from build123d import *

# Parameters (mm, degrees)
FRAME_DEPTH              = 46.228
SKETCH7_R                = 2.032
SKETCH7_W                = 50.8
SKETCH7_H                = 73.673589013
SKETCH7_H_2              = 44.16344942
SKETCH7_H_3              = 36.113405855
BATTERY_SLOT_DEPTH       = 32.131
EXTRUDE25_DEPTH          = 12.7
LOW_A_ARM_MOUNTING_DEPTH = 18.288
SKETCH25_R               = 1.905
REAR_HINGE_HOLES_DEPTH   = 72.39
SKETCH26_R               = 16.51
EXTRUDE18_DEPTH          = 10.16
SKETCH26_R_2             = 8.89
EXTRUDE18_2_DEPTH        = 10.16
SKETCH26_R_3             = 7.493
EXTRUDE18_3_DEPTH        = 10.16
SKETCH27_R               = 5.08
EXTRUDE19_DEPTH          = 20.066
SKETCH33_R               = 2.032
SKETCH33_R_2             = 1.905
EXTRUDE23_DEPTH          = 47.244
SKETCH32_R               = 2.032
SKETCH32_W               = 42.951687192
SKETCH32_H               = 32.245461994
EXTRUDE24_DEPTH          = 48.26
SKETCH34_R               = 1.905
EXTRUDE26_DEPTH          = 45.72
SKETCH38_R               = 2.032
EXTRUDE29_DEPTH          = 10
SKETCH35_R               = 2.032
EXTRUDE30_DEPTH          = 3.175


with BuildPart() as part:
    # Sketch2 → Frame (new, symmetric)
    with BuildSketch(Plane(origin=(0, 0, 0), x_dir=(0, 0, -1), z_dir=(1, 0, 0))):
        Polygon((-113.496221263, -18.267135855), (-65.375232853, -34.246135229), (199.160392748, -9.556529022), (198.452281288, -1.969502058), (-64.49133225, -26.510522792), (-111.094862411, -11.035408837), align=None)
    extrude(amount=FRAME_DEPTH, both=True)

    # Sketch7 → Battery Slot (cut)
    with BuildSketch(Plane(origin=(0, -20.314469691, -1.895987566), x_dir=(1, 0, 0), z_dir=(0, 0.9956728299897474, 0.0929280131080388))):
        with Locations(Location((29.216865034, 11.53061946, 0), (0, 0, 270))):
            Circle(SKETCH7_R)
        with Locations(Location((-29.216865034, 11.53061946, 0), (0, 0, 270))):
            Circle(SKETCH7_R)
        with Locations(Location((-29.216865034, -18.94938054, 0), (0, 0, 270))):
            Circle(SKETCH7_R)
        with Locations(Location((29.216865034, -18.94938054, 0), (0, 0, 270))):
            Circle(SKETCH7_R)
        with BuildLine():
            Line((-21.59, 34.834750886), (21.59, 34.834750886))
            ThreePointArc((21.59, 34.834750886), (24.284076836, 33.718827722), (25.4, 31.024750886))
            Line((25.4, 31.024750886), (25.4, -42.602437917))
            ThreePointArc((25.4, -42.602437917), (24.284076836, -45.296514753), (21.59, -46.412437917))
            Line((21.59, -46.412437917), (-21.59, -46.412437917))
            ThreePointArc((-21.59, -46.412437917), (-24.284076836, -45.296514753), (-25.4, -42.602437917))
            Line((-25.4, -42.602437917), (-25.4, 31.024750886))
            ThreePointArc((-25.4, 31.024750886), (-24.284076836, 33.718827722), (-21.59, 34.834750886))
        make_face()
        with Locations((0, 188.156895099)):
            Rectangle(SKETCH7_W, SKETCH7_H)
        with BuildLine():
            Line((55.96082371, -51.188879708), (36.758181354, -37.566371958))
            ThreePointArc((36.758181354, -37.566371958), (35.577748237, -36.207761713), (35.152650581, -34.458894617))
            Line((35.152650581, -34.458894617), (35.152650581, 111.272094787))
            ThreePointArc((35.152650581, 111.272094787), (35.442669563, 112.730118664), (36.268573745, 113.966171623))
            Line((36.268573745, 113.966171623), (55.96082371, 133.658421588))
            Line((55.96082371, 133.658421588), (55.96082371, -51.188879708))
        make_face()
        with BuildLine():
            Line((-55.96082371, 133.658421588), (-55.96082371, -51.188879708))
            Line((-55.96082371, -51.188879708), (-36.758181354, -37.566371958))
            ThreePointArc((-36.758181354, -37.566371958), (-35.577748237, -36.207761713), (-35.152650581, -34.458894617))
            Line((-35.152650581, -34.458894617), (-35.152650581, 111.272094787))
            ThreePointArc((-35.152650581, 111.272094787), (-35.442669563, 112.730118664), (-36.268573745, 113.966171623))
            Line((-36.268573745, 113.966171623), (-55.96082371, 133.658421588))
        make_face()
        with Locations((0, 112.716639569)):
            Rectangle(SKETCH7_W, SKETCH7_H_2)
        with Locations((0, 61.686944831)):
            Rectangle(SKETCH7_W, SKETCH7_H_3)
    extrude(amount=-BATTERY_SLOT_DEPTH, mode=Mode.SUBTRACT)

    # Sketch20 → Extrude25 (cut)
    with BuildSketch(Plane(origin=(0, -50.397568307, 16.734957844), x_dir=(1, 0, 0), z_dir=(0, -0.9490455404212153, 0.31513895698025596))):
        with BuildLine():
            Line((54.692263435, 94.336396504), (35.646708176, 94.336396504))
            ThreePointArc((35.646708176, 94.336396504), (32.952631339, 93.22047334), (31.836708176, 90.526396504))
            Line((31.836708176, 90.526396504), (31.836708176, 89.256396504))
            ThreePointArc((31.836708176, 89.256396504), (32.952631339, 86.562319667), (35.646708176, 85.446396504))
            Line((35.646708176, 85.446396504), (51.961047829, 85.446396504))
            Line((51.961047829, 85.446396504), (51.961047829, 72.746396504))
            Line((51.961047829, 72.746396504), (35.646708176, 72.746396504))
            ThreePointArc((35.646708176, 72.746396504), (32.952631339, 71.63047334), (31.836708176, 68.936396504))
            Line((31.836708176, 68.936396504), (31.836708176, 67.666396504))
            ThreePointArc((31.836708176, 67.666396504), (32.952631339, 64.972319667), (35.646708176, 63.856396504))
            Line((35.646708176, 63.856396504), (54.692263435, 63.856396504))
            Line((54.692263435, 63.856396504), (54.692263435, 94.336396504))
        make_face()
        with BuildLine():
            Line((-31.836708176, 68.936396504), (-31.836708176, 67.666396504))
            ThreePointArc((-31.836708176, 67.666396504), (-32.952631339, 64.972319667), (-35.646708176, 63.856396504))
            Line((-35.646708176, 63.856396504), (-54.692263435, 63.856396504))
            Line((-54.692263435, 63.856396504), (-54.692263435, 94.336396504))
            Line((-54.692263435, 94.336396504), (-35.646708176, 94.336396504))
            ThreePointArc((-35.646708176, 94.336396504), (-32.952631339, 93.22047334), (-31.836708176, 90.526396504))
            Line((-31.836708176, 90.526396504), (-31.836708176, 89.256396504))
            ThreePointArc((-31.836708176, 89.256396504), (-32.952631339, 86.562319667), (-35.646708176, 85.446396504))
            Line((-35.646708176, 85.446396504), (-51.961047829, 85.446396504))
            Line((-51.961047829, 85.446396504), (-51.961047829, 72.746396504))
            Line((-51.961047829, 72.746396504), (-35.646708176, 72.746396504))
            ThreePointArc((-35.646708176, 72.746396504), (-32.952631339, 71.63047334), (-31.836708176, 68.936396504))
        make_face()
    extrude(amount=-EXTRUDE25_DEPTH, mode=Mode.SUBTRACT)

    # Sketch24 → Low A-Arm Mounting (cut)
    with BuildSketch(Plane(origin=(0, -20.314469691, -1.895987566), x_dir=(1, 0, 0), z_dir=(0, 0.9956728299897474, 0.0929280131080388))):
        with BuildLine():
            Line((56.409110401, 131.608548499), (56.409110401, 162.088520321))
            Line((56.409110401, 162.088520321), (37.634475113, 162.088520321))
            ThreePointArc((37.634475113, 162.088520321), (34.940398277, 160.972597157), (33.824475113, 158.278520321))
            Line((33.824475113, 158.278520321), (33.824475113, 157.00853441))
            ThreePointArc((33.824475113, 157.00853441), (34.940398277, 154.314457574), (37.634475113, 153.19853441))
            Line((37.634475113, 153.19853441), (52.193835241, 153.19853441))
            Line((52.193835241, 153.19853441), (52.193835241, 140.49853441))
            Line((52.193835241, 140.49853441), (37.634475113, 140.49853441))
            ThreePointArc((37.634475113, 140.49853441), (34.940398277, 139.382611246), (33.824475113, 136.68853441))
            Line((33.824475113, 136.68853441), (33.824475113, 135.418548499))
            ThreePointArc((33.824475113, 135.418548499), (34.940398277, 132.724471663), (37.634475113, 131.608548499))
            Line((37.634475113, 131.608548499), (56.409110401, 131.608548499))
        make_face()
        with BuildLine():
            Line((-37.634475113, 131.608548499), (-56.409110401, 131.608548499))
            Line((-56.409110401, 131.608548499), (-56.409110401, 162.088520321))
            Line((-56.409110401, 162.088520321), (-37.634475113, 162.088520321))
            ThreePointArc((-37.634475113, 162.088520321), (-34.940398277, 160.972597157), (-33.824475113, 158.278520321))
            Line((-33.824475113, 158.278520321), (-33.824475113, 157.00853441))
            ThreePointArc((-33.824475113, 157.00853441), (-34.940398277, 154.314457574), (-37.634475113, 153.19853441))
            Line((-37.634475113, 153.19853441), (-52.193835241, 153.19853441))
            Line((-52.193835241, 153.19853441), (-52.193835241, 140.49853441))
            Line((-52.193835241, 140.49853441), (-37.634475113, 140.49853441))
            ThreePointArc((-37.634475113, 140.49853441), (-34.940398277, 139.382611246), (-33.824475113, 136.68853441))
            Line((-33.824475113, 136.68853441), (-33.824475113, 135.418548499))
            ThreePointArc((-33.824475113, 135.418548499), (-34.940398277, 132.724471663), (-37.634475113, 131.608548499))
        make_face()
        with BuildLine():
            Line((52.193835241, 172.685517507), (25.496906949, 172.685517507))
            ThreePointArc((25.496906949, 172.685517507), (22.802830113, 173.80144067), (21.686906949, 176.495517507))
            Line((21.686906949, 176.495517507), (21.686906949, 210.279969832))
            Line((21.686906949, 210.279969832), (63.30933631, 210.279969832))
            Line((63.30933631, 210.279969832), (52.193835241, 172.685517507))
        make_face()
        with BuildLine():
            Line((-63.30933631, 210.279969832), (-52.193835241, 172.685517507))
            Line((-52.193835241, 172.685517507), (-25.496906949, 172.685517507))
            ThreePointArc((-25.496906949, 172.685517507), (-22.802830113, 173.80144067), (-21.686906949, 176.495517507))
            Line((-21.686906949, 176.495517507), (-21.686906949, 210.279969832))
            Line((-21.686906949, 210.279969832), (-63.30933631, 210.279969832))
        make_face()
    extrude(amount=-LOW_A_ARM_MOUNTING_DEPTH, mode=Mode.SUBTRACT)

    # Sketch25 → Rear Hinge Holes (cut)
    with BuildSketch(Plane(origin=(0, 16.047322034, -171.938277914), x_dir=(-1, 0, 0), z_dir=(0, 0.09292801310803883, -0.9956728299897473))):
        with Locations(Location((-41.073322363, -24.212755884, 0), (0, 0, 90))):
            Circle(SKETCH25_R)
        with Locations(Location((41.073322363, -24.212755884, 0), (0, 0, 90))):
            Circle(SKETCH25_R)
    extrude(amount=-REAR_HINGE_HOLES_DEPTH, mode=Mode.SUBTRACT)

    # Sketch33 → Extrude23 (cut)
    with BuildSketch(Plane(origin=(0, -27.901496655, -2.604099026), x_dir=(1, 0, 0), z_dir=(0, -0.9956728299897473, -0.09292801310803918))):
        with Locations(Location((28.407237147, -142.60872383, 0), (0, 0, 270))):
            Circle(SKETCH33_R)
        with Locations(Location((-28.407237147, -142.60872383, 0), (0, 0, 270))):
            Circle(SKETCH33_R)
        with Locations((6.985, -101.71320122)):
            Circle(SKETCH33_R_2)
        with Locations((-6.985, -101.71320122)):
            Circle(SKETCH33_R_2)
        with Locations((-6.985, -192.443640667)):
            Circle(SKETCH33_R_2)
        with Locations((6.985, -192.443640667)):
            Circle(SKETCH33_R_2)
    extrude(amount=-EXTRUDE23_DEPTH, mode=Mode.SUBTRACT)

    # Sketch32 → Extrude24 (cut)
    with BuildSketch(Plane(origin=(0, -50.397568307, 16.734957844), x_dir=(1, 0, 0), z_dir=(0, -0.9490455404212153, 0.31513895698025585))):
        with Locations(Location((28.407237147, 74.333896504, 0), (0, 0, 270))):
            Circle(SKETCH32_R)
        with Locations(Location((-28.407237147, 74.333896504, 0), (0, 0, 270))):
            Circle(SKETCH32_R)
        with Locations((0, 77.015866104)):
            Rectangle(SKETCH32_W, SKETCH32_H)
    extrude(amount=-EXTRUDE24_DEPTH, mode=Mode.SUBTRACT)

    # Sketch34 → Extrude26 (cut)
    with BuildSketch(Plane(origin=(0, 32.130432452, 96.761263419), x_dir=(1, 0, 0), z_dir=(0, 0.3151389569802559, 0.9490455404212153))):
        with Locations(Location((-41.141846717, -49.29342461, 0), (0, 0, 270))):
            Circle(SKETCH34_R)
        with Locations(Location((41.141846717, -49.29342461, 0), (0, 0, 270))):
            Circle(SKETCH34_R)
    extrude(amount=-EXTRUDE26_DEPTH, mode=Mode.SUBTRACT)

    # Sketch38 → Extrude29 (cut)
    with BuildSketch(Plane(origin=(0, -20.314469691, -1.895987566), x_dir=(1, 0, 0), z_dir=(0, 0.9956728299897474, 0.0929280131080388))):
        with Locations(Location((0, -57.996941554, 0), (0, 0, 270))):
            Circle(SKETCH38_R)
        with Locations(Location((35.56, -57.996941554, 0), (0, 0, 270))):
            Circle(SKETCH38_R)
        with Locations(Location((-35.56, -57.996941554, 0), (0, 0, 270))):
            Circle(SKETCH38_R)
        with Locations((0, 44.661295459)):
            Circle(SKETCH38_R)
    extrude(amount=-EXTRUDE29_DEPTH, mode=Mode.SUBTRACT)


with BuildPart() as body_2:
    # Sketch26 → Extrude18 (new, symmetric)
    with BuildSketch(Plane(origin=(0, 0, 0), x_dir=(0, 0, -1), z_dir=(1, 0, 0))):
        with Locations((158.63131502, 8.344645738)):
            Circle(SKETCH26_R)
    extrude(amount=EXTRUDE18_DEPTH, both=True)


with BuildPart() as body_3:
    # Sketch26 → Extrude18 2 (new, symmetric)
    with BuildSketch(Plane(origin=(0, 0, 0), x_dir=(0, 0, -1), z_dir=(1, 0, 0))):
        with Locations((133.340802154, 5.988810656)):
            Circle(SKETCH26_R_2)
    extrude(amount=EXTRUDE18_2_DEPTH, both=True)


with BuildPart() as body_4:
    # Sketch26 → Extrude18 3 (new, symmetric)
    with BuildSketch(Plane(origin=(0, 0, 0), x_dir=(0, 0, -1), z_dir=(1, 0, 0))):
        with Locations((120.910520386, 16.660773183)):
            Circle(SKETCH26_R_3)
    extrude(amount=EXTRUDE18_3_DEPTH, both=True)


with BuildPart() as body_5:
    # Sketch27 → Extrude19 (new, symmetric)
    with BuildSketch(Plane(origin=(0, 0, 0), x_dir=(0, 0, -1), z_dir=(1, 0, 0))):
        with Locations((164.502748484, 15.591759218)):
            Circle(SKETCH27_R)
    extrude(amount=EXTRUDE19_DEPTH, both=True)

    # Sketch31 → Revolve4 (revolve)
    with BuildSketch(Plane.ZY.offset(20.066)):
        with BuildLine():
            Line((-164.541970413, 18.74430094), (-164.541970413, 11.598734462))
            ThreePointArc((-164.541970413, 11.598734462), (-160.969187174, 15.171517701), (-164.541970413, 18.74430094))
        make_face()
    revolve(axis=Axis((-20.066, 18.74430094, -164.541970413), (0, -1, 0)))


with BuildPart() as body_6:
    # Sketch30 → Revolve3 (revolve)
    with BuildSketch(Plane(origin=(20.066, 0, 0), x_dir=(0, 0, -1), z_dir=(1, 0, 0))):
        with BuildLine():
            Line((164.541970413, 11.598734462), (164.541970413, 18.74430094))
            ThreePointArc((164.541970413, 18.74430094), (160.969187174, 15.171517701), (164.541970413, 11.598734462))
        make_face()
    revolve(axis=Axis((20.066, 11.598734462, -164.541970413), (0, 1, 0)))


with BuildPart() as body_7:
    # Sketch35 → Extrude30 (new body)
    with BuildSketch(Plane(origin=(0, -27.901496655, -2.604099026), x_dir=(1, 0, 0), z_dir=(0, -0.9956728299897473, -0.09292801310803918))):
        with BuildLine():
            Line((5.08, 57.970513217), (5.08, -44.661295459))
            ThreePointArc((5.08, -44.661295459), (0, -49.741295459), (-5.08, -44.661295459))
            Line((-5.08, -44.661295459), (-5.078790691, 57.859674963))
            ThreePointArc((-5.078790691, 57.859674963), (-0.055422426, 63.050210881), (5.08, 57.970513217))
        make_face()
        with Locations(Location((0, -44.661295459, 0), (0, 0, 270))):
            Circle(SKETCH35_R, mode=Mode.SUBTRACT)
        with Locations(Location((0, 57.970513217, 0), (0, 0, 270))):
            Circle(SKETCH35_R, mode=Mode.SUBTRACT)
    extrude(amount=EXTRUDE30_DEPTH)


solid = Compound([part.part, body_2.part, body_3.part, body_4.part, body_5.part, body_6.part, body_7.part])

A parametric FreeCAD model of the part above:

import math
import FreeCAD as App
import Part
import Sketcher
from FreeCAD import Vector
Q = App.Units.Quantity


def add_polygon(sketch, points):
    """Adds a closed chain of lines whose ends are joined by coincident constraints."""
    first, n = sketch.GeometryCount, len(points)
    for a, b in zip(points, points[1:] + points[:1]):
        sketch.addGeometry(Part.LineSegment(App.Vector(*a, 0), App.Vector(*b, 0)), False)
    for i in range(n):
        sketch.addConstraint(Sketcher.Constraint("Coincident", first + i, 2, first + (i + 1) % n, 1))

doc = App.newDocument("Part")
body = doc.addObject("PartDesign::Body", "Body")

# Sketch on YZ plane
sketch1 = body.newObject("Sketcher::SketchObject", "Sketch")
sketch1.AttachmentSupport = (doc.getObject("YZ_Plane"), [""])
sketch1.MapMode = "FlatFace"
add_polygon(sketch1, [(-18, 113), (-34, 65), (-10, -199), (-2, -198), (-27, 64), (-11, 111)])  # lines 0-5
sketch1.addConstraint([
    Sketcher.Constraint("Perpendicular", 1, 2),
    Sketcher.Constraint("Perpendicular", 2, 3),
    Sketcher.Constraint("Parallel", 0, 4),
    Sketcher.Constraint("Perpendicular", 4, 5),
    Sketcher.Constraint("Equal", 2, 5),
    Sketcher.Constraint("Distance", 2, Q("0.3 in")),
    Sketcher.Constraint("DistanceY", 3, 2, 0, 2, 0.883901),
    Sketcher.Constraint("DistanceX", 0, 2, 5, 2, 15.978999),
    Sketcher.Constraint("Distance", 1, 265.685291),
    Sketcher.Constraint("Distance", 3, 264.08636),
    Sketcher.Constraint("DistanceX", 1, 2, -1, 1, 9.556529),
    Sketcher.Constraint("DistanceY", 2, 2, -1, 1, 198.452281),
])
pad1 = body.newObject("PartDesign::Pad", "Pad")
pad1.Profile = sketch1
pad1.Length = Q("3.64 in")
pad1.Midplane = True

# Sketch on an angled plane
sketch2 = body.newObject("Sketcher::SketchObject", "Sketch001")
sketch2.Placement = App.Placement(Vector(0, -20.31447, -1.895988), App.Rotation(Vector(1, 0, 0), Vector(0, 0.092928013, -0.99567283), Vector(0, 0.99567283, 0.092928013), "ZXY"))
sketch2.addGeometry(Part.Circle(Vector(29.2, 11.5, 0), Vector(0, 0, 1), 2), False)  # 0
sketch2.addGeometry(Part.Circle(Vector(-29.2, 11.5, 0), Vector(0, 0, 1), 2), False)  # 1
sketch2.addGeometry(Part.Circle(Vector(-29.2, -18.9, 0), Vector(0, 0, 1), 2), False)  # 2
sketch2.addGeometry(Part.Circle(Vector(29.2, -18.9, 0), Vector(0, 0, 1), 2), False)  # 3
sketch2.addGeometry(Part.LineSegment(Vector(21.6, 34.8, 0), Vector(-21.6, 34.8, 0)), False)  # 4
sketch2.addGeometry(Part.ArcOfCircle(Part.Circle(Vector(-21.6, 31, 0), Vector(0, 0, 1), 3.8), math.radians(90), math.radians(180)), False)  # 5
sketch2.addGeometry(Part.LineSegment(Vector(-25.4, 31, 0), Vector(-25.4, -42.6, 0)), False)  # 6
sketch2.addGeometry(Part.ArcOfCircle(Part.Circle(Vector(-21.6, -42.6, 0), Vector(0, 0, 1), 3.8), math.radians(-180), math.radians(-90)), False)  # 7
sketch2.addGeometry(Part.LineSegment(Vector(-21.6, -46.4, 0), Vector(21.6, -46.4, 0)), False)  # 8
sketch2.addGeometry(Part.ArcOfCircle(Part.Circle(Vector(21.6, -42.6, 0), Vector(0, 0, 1), 3.8), math.radians(-90), math.radians(0)), False)  # 9
sketch2.addGeometry(Part.LineSegment(Vector(25.4, -42.6, 0), Vector(25.4, 31, 0)), False)  # 10
sketch2.addGeometry(Part.ArcOfCircle(Part.Circle(Vector(21.6, 31, 0), Vector(0, 0, 1), 3.8), math.radians(0), math.radians(90)), False)  # 11
add_polygon(sketch2, [(-25.4, 225), (-25.4, 151.3), (25.4, 151.3), (25.4, 225)])  # lines 12-15
sketch2.addGeometry(Part.LineSegment(Vector(36.8, -37.6, 0), Vector(56, -51.2, 0)), False)  # 16
sketch2.addGeometry(Part.LineSegment(Vector(56, -51.2, 0), Vector(56, 133.7, 0)), False)  # 17
sketch2.addGeometry(Part.LineSegment(Vector(56, 133.7, 0), Vector(36.3, 114, 0)), False)  # 18
sketch2.addGeometry(Part.ArcOfCircle(Part.Circle(Vector(39, 111.3, 0), Vector(0, 0, 1), 3.8), math.radians(135), math.radians(180)), False)  # 19
sketch2.addGeometry(Part.LineSegment(Vector(35.2, 111.3, 0), Vector(35.2, -34.5, 0)), False)  # 20
sketch2.addGeometry(Part.ArcOfCircle(Part.Circle(Vector(39, -34.5, 0), Vector(0, 0, 1), 3.8), math.radians(-180), math.radians(-125)), False)  # 21
sketch2.addGeometry(Part.LineSegment(Vector(-56, 133.7, 0), Vector(-56, -51.2, 0)), False)  # 22
sketch2.addGeometry(Part.LineSegment(Vector(-56, -51.2, 0), Vector(-36.8, -37.6, 0)), False)  # 23
sketch2.addGeometry(Part.ArcOfCircle(Part.Circle(Vector(-39, -34.5, 0), Vector(0, 0, 1), 3.8), math.radians(-55), math.radians(0)), False)  # 24
sketch2.addGeometry(Part.LineSegment(Vector(-35.2, -34.5, 0), Vector(-35.2, 111.3, 0)), False)  # 25
sketch2.addGeometry(Part.ArcOfCircle(Part.Circle(Vector(-39, 111.3, 0), Vector(0, 0, 1), 3.8), math.radians(0), math.radians(45)), False)  # 26
sketch2.addGeometry(Part.LineSegment(Vector(-36.3, 114, 0), Vector(-56, 133.7, 0)), False)  # 27
add_polygon(sketch2, [(-25.4, 134.8), (-25.4, 90.6), (25.4, 90.6), (25.4, 134.8)])  # lines 28-31
add_polygon(sketch2, [(-25.4, 79.7), (-25.4, 43.6), (25.4, 43.6), (25.4, 79.7)])  # lines 32-35
sketch2.addConstraint([
    Sketcher.Constraint("Tangent", 4, 2, 5, 1),
    Sketcher.Constraint("Tangent", 5, 2, 6, 1),
    Sketcher.Constraint("Tangent", 6, 2, 7, 1),
    Sketcher.Constraint("Tangent", 7, 2, 8, 1),
    Sketcher.Constraint("Tangent", 8, 2, 9, 1),
    Sketcher.Constraint("Tangent", 9, 2, 10, 1),
    Sketcher.Constraint("Tangent", 10, 2, 11, 1),
    Sketcher.Constraint("Tangent", 11, 2, 4, 1),
    Sketcher.Constraint("Coincident", 16, 2, 17, 1),
    Sketcher.Constraint("Coincident", 17, 2, 18, 1),
    Sketcher.Constraint("Tangent", 18, 2, 19, 1),
    Sketcher.Constraint("Tangent", 19, 2, 20, 1),
    Sketcher.Constraint("Tangent", 20, 2, 21, 1),
    Sketcher.Constraint("Tangent", 21, 2, 16, 1),
    Sketcher.Constraint("Coincident", 22, 2, 23, 1),
    Sketcher.Constraint("Tangent", 23, 2, 24, 1),
    Sketcher.Constraint("Tangent", 24, 2, 25, 1),
    Sketcher.Constraint("Tangent", 25, 2, 26, 1),
    Sketcher.Constraint("Tangent", 26, 2, 27, 1),
    Sketcher.Constraint("Coincident", 27, 2, 22, 1),
    Sketcher.Constraint("Horizontal", 4),
    Sketcher.Constraint("Vertical", 6),
    Sketcher.Constraint("Horizontal", 8),
    Sketcher.Constraint("Vertical", 10),
    Sketcher.Constraint("Vertical", 12),
    Sketcher.Constraint("Horizontal", 13),
    Sketcher.Constraint("Vertical", 14),
    Sketcher.Constraint("Horizontal", 15),
    Sketcher.Constraint("Vertical", 17),
    Sketcher.Constraint("Vertical", 20),
    Sketcher.Constraint("Vertical", 22),
    Sketcher.Constraint("Vertical", 25),
    Sketcher.Constraint("Vertical", 28),
    Sketcher.Constraint("Horizontal", 29),
    Sketcher.Constraint("Vertical", 30),
    Sketcher.Constraint("Horizontal", 31),
    Sketcher.Constraint("Vertical", 32),
    Sketcher.Constraint("Horizontal", 33),
    Sketcher.Constraint("Vertical", 34),
    Sketcher.Constraint("Horizontal", 35),
    Sketcher.Constraint("Equal", 0, 1),
    Sketcher.Constraint("Equal", 1, 2),
    Sketcher.Constraint("Equal", 2, 3),
    Sketcher.Constraint("Equal", 5, 7),
    Sketcher.Constraint("Equal", 7, 9),
    Sketcher.Constraint("Equal", 9, 11),
    Sketcher.Constraint("Equal", 11, 19),
    Sketcher.Constraint("Equal", 19, 21),
    Sketcher.Constraint("Equal", 21, 24),
    Sketcher.Constraint("Equal", 24, 26),
    Sketcher.Constraint("Symmetric", 0, 3, 1, 3, -2),
    Sketcher.Constraint("Symmetric", 2, 3, 3, 3, -2),
    Sketcher.Constraint("Symmetric", 21, 3, 24, 3, -2),
    Sketcher.Constraint("Symmetric", 16, 2, 22, 2, -2),
    Sketcher.Constraint("Symmetric", 18, 2, 26, 2, -2),
    Sketcher.Constraint("Perpendicular", 18, 27),
    Sketcher.Constraint("Vertical", 1, 3, 2, 3),
    Sketcher.Constraint("Vertical", 6, 2, 12, 2),
    Sketcher.Constraint("Vertical", 10, 2, 13, 2),
    Sketcher.Constraint("Vertical", 15, 2, 28, 2),
    Sketcher.Constraint("Vertical", 14, 2, 29, 2),
    Sketcher.Constraint("Vertical", 31, 2, 32, 2),
    Sketcher.Constraint("Vertical", 30, 2, 33, 2),
    Sketcher.Constraint("Diameter", 0, Q("0.16 in")),
    Sketcher.Constraint("DistanceX", 13, 1, 13, 2, Q("2 in")),
    Sketcher.Constraint("Radius", 5, Q("0.15 in")),
    Sketcher.Constraint("DistanceX", 5, 2, -1, 1, Q("1 in")),
    Sketcher.Constraint("DistanceY", 2, 3, 1, 3, Q("1.2 in")),
    Sketcher.Constraint("DistanceY", 17, 1, 17, 2, 184.847301),
    Sketcher.Constraint("DistanceY", 6, 2, 6, 1, 73.627189),
    Sketcher.Constraint("DistanceY", 12, 2, 12, 1, 73.673589),
    Sketcher.Constraint("DistanceY", 20, 2, 20, 1, 145.730989),
    Sketcher.Constraint("DistanceY", 28, 2, 28, 1, 44.163449),
    Sketcher.Constraint("DistanceY", -1, 1, 12, 2, 151.320101),
    Sketcher.Constraint("DistanceX", 26, 3, 19, 3, 77.925301),
    Sketcher.Constraint("DistanceY", 16, 2, 3, 3, 32.239499),
    Sketcher.Constraint("DistanceY", 32, 2, 32, 1, 36.113406),
    Sketcher.Constraint("DistanceY", -1, 1, 0, 3, 11.530619),
    Sketcher.Constraint("DistanceY", -1, 1, 5, 3, 31.024751),
    Sketcher.Constraint("DistanceY", -1, 1, 18, 2, 113.966172),
    Sketcher.Constraint("DistanceY", -1, 1, 32, 2, 43.630242),
    Sketcher.Constraint("DistanceX", 1, 3, 0, 3, 58.43373),
    Sketcher.Constraint("DistanceY", 28, 2, 25, 2, 20.63718),
])
pocket1 = body.newObject("PartDesign::Pocket", "Pocket")
pocket1.Profile = sketch2
pocket1.Length = Q("1.265 in")

# Sketch on an angled plane
sketch3 = body.newObject("Sketcher::SketchObject", "Sketch002")
sketch3.Placement = App.Placement(Vector(0, -50.397568, 16.734958), App.Rotation(Vector(1, 0, 0), Vector(0, 0.315138957, 0.94904554), Vector(0, -0.94904554, 0.315138957), "ZXY"))
sketch3.addGeometry([
    Part.LineSegment(Vector(54.7, 94.3, 0), Vector(35.6, 94.3, 0)),  # 0
    Part.ArcOfCircle(Part.Circle(Vector(35.6, 90.5, 0), Vector(0, 0, 1), 3.8), math.radians(90), math.radians(180)),  # 1
    Part.LineSegment(Vector(31.8, 90.5, 0), Vector(31.8, 89.3, 0)),  # 2
    Part.ArcOfCircle(Part.Circle(Vector(35.6, 89.3, 0), Vector(0, 0, 1), 3.8), math.radians(180), math.radians(270)),  # 3
    Part.LineSegment(Vector(35.6, 85.4, 0), Vector(52, 85.4, 0)),  # 4
    Part.LineSegment(Vector(52, 85.4, 0), Vector(52, 72.7, 0)),  # 5
    Part.LineSegment(Vector(52, 72.7, 0), Vector(35.6, 72.7, 0)),  # 6
    Part.ArcOfCircle(Part.Circle(Vector(35.6, 68.9, 0), Vector(0, 0, 1), 3.8), math.radians(90), math.radians(180)),  # 7
    Part.LineSegment(Vector(31.8, 68.9, 0), Vector(31.8, 67.7, 0)),  # 8
    Part.ArcOfCircle(Part.Circle(Vector(35.6, 67.7, 0), Vector(0, 0, 1), 3.8), math.radians(180), math.radians(270)),  # 9
    Part.LineSegment(Vector(35.6, 63.9, 0), Vector(54.7, 63.9, 0)),  # 10
    Part.LineSegment(Vector(54.7, 63.9, 0), Vector(54.7, 94.3, 0)),  # 11
    Part.LineSegment(Vector(-31.8, 67.7, 0), Vector(-31.8, 68.9, 0)),  # 12
    Part.ArcOfCircle(Part.Circle(Vector(-35.6, 68.9, 0), Vector(0, 0, 1), 3.8), math.radians(0), math.radians(90)),  # 13
    Part.LineSegment(Vector(-35.6, 72.7, 0), Vector(-52, 72.7, 0)),  # 14
    Part.LineSegment(Vector(-52, 72.7, 0), Vector(-52, 85.4, 0)),  # 15
    Part.LineSegment(Vector(-52, 85.4, 0), Vector(-35.6, 85.4, 0)),  # 16
    Part.ArcOfCircle(Part.Circle(Vector(-35.6, 89.3, 0), Vector(0, 0, 1), 3.8), math.radians(-90), math.radians(0)),  # 17
    Part.LineSegment(Vector(-31.8, 89.3, 0), Vector(-31.8, 90.5, 0)),  # 18
    Part.ArcOfCircle(Part.Circle(Vector(-35.6, 90.5, 0), Vector(0, 0, 1), 3.8), math.radians(0), math.radians(90)),  # 19
    Part.LineSegment(Vector(-35.6, 94.3, 0), Vector(-54.7, 94.3, 0)),  # 20
    Part.LineSegment(Vector(-54.7, 94.3, 0), Vector(-54.7, 63.9, 0)),  # 21
    Part.LineSegment(Vector(-54.7, 63.9, 0), Vector(-35.6, 63.9, 0)),  # 22
    Part.ArcOfCircle(Part.Circle(Vector(-35.6, 67.7, 0), Vector(0, 0, 1), 3.8), math.radians(-90), math.radians(0)),  # 23
], False)
sketch3.addConstraint([
    Sketcher.Constraint("Tangent", 0, 2, 1, 1),
    Sketcher.Constraint("Tangent", 1, 2, 2, 1),
    Sketcher.Constraint("Tangent", 2, 2, 3, 1),
    Sketcher.Constraint("Tangent", 3, 2, 4, 1),
    Sketcher.Constraint("Coincident", 4, 2, 5, 1),
    Sketcher.Constraint("Coincident", 5, 2, 6, 1),
    Sketcher.Constraint("Tangent", 6, 2, 7, 1),
    Sketcher.Constraint("Tangent", 7, 2, 8, 1),
    Sketcher.Constraint("Tangent", 8, 2, 9, 1),
    Sketcher.Constraint("Tangent", 9, 2, 10, 1),
    Sketcher.Constraint("Coincident", 10, 2, 11, 1),
    Sketcher.Constraint("Coincident", 11, 2, 0, 1),
    Sketcher.Constraint("Tangent", 12, 2, 13, 1),
    Sketcher.Constraint("Tangent", 13, 2, 14, 1),
    Sketcher.Constraint("Coincident", 14, 2, 15, 1),
    Sketcher.Constraint("Coincident", 15, 2, 16, 1),
    Sketcher.Constraint("Tangent", 16, 2, 17, 1),
    Sketcher.Constraint("Tangent", 17, 2, 18, 1),
    Sketcher.Constraint("Tangent", 18, 2, 19, 1),
    Sketcher.Constraint("Tangent", 19, 2, 20, 1),
    Sketcher.Constraint("Coincident", 20, 2, 21, 1),
    Sketcher.Constraint("Coincident", 21, 2, 22, 1),
    Sketcher.Constraint("Tangent", 22, 2, 23, 1),
    Sketcher.Constraint("Tangent", 23, 2, 12, 1),
    Sketcher.Constraint("Horizontal", 0),
    Sketcher.Constraint("Vertical", 2),
    Sketcher.Constraint("Horizontal", 4),
    Sketcher.Constraint("Vertical", 5),
    Sketcher.Constraint("Horizontal", 6),
    Sketcher.Constraint("Vertical", 8),
    Sketcher.Constraint("Horizontal", 10),
    Sketcher.Constraint("Vertical", 11),
    Sketcher.Constraint("Vertical", 12),
    Sketcher.Constraint("Horizontal", 14),
    Sketcher.Constraint("Vertical", 15),
    Sketcher.Constraint("Horizontal", 16),
    Sketcher.Constraint("Vertical", 18),
    Sketcher.Constraint("Horizontal", 20),
    Sketcher.Constraint("Vertical", 21),
    Sketcher.Constraint("Horizontal", 22),
    Sketcher.Constraint("Equal", 1, 3),
    Sketcher.Constraint("Equal", 3, 7),
    Sketcher.Constraint("Equal", 7, 9),
    Sketcher.Constraint("Equal", 9, 13),
    Sketcher.Constraint("Equal", 13, 17),
    Sketcher.Constraint("Equal", 17, 19),
    Sketcher.Constraint("Equal", 19, 23),
    Sketcher.Constraint("Symmetric", 7, 3, 13, 3, -2),
    Sketcher.Constraint("Symmetric", 3, 3, 17, 3, -2),
    Sketcher.Constraint("Symmetric", 11, 2, 20, 2, -2),
    Sketcher.Constraint("Horizontal", 9, 3, 23, 3),
    Sketcher.Constraint("Vertical", 3, 3, 7, 3),
    Sketcher.Constraint("Equal", 6, 14),
    Sketcher.Constraint("Equal", 2, 8),
    Sketcher.Constraint("Radius", 1, Q("0.15 in")),
    Sketcher.Constraint("DistanceY", 5, 2, 5, 1, Q("0.5 in")),
    Sketcher.Constraint("DistanceY", 11, 1, 11, 2, Q("1.2 in")),
    Sketcher.Constraint("DistanceX", 4, 1, 4, 2, 16.31434),
    Sketcher.Constraint("DistanceX", 0, 2, 0, 1, 19.045555),
    Sketcher.Constraint("DistanceX", -1, 1, 1, 3, 35.646708),
    Sketcher.Constraint("DistanceY", -1, 1, 1, 3, 90.526396),
])
pocket2 = body.newObject("PartDesign::Pocket", "Pocket001")
pocket2.Profile = sketch3
pocket2.Length = Q("0.5 in")

# Sketch on an angled plane
sketch4 = body.newObject("Sketcher::SketchObject", "Sketch003")
sketch4.Placement = App.Placement(Vector(0, -20.31447, -1.895988), App.Rotation(Vector(1, 0, 0), Vector(0, 0.092928013, -0.99567283), Vector(0, 0.99567283, 0.092928013), "ZXY"))
sketch4.addGeometry([
    Part.LineSegment(Vector(56.4, 131.6, 0), Vector(56.4, 162.1, 0)),  # 0
    Part.LineSegment(Vector(56.4, 162.1, 0), Vector(37.6, 162.1, 0)),  # 1
    Part.ArcOfCircle(Part.Circle(Vector(37.6, 158.3, 0), Vector(0, 0, 1), 3.8), math.radians(90), math.radians(180)),  # 2
    Part.LineSegment(Vector(33.8, 158.3, 0), Vector(33.8, 157, 0)),  # 3
    Part.ArcOfCircle(Part.Circle(Vector(37.6, 157, 0), Vector(0, 0, 1), 3.8), math.radians(-180), math.radians(-90)),  # 4
    Part.LineSegment(Vector(37.6, 153.2, 0), Vector(52.2, 153.2, 0)),  # 5
    Part.LineSegment(Vector(52.2, 153.2, 0), Vector(52.2, 140.5, 0)),  # 6
    Part.LineSegment(Vector(52.2, 140.5, 0), Vector(37.6, 140.5, 0)),  # 7
    Part.ArcOfCircle(Part.Circle(Vector(37.6, 136.7, 0), Vector(0, 0, 1), 3.8), math.radians(90), math.radians(180)),  # 8
    Part.LineSegment(Vector(33.8, 136.7, 0), Vector(33.8, 135.4, 0)),  # 9
    Part.ArcOfCircle(Part.Circle(Vector(37.6, 135.4, 0), Vector(0, 0, 1), 3.8), math.radians(-180), math.radians(-90)),  # 10
    Part.LineSegment(Vector(37.6, 131.6, 0), Vector(56.4, 131.6, 0)),  # 11
    Part.LineSegment(Vector(-56.4, 131.6, 0), Vector(-37.6, 131.6, 0)),  # 12
    Part.ArcOfCircle(Part.Circle(Vector(-37.6, 135.4, 0), Vector(0, 0, 1), 3.8), math.radians(-90), math.radians(0)),  # 13
    Part.LineSegment(Vector(-33.8, 135.4, 0), Vector(-33.8, 136.7, 0)),  # 14
    Part.ArcOfCircle(Part.Circle(Vector(-37.6, 136.7, 0), Vector(0, 0, 1), 3.8), math.radians(0), math.radians(90)),  # 15
    Part.LineSegment(Vector(-37.6, 140.5, 0), Vector(-52.2, 140.5, 0)),  # 16
    Part.LineSegment(Vector(-52.2, 140.5, 0), Vector(-52.2, 153.2, 0)),  # 17
    Part.LineSegment(Vector(-52.2, 153.2, 0), Vector(-37.6, 153.2, 0)),  # 18
    Part.ArcOfCircle(Part.Circle(Vector(-37.6, 157, 0), Vector(0, 0, 1), 3.8), math.radians(-90), math.radians(0)),  # 19
    Part.LineSegment(Vector(-33.8, 157, 0), Vector(-33.8, 158.3, 0)),  # 20
    Part.ArcOfCircle(Part.Circle(Vector(-37.6, 158.3, 0), Vector(0, 0, 1), 3.8), math.radians(0), math.radians(90)),  # 21
    Part.LineSegment(Vector(-37.6, 162.1, 0), Vector(-56.4, 162.1, 0)),  # 22
    Part.LineSegment(Vector(-56.4, 162.1, 0), Vector(-56.4, 131.6, 0)),  # 23
    Part.LineSegment(Vector(25.5, 172.7, 0), Vector(52.2, 172.7, 0)),  # 24
    Part.LineSegment(Vector(52.2, 172.7, 0), Vector(63.3, 210.3, 0)),  # 25
    Part.LineSegment(Vector(63.3, 210.3, 0), Vector(21.7, 210.3, 0)),  # 26
    Part.LineSegment(Vector(21.7, 210.3, 0), Vector(21.7, 176.5, 0)),  # 27
    Part.ArcOfCircle(Part.Circle(Vector(25.5, 176.5, 0), Vector(0, 0, 1), 3.8), math.radians(180), math.radians(270)),  # 28
    Part.LineSegment(Vector(-63.3, 210.3, 0), Vector(-52.2, 172.7, 0)),  # 29
    Part.LineSegment(Vector(-52.2, 172.7, 0), Vector(-25.5, 172.7, 0)),  # 30
    Part.ArcOfCircle(Part.Circle(Vector(-25.5, 176.5, 0), Vector(0, 0, 1), 3.8), math.radians(-90), math.radians(0)),  # 31
    Part.LineSegment(Vector(-21.7, 176.5, 0), Vector(-21.7, 210.3, 0)),  # 32
    Part.LineSegment(Vector(-21.7, 210.3, 0), Vector(-63.3, 210.3, 0)),  # 33
], False)
sketch4.addConstraint([
    Sketcher.Constraint("Coincident", 0, 2, 1, 1),
    Sketcher.Constraint("Tangent", 1, 2, 2, 1),
    Sketcher.Constraint("Tangent", 2, 2, 3, 1),
    Sketcher.Constraint("Tangent", 3, 2, 4, 1),
    Sketcher.Constraint("Tangent", 4, 2, 5, 1),
    Sketcher.Constraint("Coincident", 5, 2, 6, 1),
    Sketcher.Constraint("Coincident", 6, 2, 7, 1),
    Sketcher.Constraint("Tangent", 7, 2, 8, 1),
    Sketcher.Constraint("Tangent", 8, 2, 9, 1),
    Sketcher.Constraint("Tangent", 9, 2, 10, 1),
    Sketcher.Constraint("Tangent", 10, 2, 11, 1),
    Sketcher.Constraint("Coincident", 11, 2, 0, 1),
    Sketcher.Constraint("Tangent", 12, 2, 13, 1),
    Sketcher.Constraint("Tangent", 13, 2, 14, 1),
    Sketcher.Constraint("Tangent", 14, 2, 15, 1),
    Sketcher.Constraint("Tangent", 15, 2, 16, 1),
    Sketcher.Constraint("Coincident", 16, 2, 17, 1),
    Sketcher.Constraint("Coincident", 17, 2, 18, 1),
    Sketcher.Constraint("Tangent", 18, 2, 19, 1),
    Sketcher.Constraint("Tangent", 19, 2, 20, 1),
    Sketcher.Constraint("Tangent", 20, 2, 21, 1),
    Sketcher.Constraint("Tangent", 21, 2, 22, 1),
    Sketcher.Constraint("Coincident", 22, 2, 23, 1),
    Sketcher.Constraint("Coincident", 23, 2, 12, 1),
    Sketcher.Constraint("Coincident", 24, 2, 25, 1),
    Sketcher.Constraint("Coincident", 25, 2, 26, 1),
    Sketcher.Constraint("Coincident", 26, 2, 27, 1),
    Sketcher.Constraint("Tangent", 27, 2, 28, 1),
    Sketcher.Constraint("Tangent", 28, 2, 24, 1),
    Sketcher.Constraint("Coincident", 29, 2, 30, 1),
    Sketcher.Constraint("Tangent", 30, 2, 31, 1),
    Sketcher.Constraint("Tangent", 31, 2, 32, 1),
    Sketcher.Constraint("Coincident", 32, 2, 33, 1),
    Sketcher.Constraint("Coincident", 33, 2, 29, 1),
    Sketcher.Constraint("Vertical", 0),
    Sketcher.Constraint("Horizontal", 1),
    Sketcher.Constraint("Vertical", 3),
    Sketcher.Constraint("Horizontal", 5),
    Sketcher.Constraint("Vertical", 6),
    Sketcher.Constraint("Horizontal", 7),
    Sketcher.Constraint("Vertical", 9),
    Sketcher.Constraint("Horizontal", 11),
    Sketcher.Constraint("Horizontal", 12),
    Sketcher.Constraint("Vertical", 14),
    Sketcher.Constraint("Horizontal", 16),
    Sketcher.Constraint("Vertical", 17),
    Sketcher.Constraint("Horizontal", 18),
    Sketcher.Constraint("Vertical", 20),
    Sketcher.Constraint("Horizontal", 22),
    Sketcher.Constraint("Vertical", 23),
    Sketcher.Constraint("Horizontal", 24),
    Sketcher.Constraint("Horizontal", 26),
    Sketcher.Constraint("Vertical", 27),
    Sketcher.Constraint("Horizontal", 30),
    Sketcher.Constraint("Vertical", 32),
    Sketcher.Constraint("Horizontal", 33),
    Sketcher.Constraint("Equal", 2, 4),
    Sketcher.Constraint("Equal", 4, 8),
    Sketcher.Constraint("Equal", 8, 10),
    Sketcher.Constraint("Equal", 10, 13),
    Sketcher.Constraint("Equal", 13, 15),
    Sketcher.Constraint("Equal", 15, 19),
    Sketcher.Constraint("Equal", 19, 21),
    Sketcher.Constraint("Equal", 21, 28),
    Sketcher.Constraint("Equal", 28, 31),
    Sketcher.Constraint("Symmetric", 10, 3, 13, 3, -2),
    Sketcher.Constraint("Symmetric", 4, 3, 19, 3, -2),
    Sketcher.Constraint("Symmetric", 28, 3, 31, 3, -2),
    Sketcher.Constraint("Symmetric", 6, 2, 16, 2, -2),
    Sketcher.Constraint("Symmetric", 0, 2, 22, 2, -2),
    Sketcher.Constraint("Symmetric", 25, 2, 33, 2, -2),
    Sketcher.Constraint("Vertical", 4, 3, 8, 3),
    Sketcher.Constraint("Vertical", 6, 2, 24, 2),
    Sketcher.Constraint("Vertical", 17, 2, 29, 2),
    Sketcher.Constraint("Equal", 3, 9),
    Sketcher.Constraint("Radius", 2, Q("0.15 in")),
    Sketcher.Constraint("DistanceY", 6, 2, 6, 1, Q("0.5 in")),
    Sketcher.Constraint("DistanceX", 5, 1, 5, 2, 14.55936),
    Sketcher.Constraint("DistanceX", 24, 1, 24, 2, 26.696928),
    Sketcher.Constraint("DistanceX", 26, 2, 26, 1, 41.622429),
    Sketcher.Constraint("DistanceY", 0, 1, 0, 2, 30.479972),
    Sketcher.Constraint("Distance", 25, 39.203281),
    Sketcher.Constraint("DistanceX", 1, 2, 1, 1, 18.774635),
    Sketcher.Constraint("DistanceY", -1, 1, 2, 3, 158.27852),
    Sketcher.Constraint("DistanceX", -1, 1, 0, 2, 56.40911),
    Sketcher.Constraint("DistanceY", -1, 1, 25, 2, 210.27997),
])
pocket3 = body.newObject("PartDesign::Pocket", "Pocket002")
pocket3.Profile = sketch4
pocket3.Length = Q("0.72 in")

# Sketch on an angled plane
sketch5 = body.newObject("Sketcher::SketchObject", "Sketch004")
sketch5.Placement = App.Placement(Vector(0, 16.047322, -171.938278), App.Rotation(Vector(-1, 0, 0), Vector(0, 0.99567283, 0.092928013), Vector(0, 0.092928013, -0.99567283), "ZXY"))
sketch5.addGeometry([
    Part.Circle(Vector(-41.1, -24.2, 0), Vector(0, 0, 1), 1.9),
    Part.Circle(Vector(41.1, -24.2, 0), Vector(0, 0, 1), 1.9),
], False)
sketch5.addConstraint([
    Sketcher.Constraint("Equal", 0, 1),
    Sketcher.Constraint("Symmetric", 0, 3, 1, 3, -2),
    Sketcher.Constraint("Diameter", 0, Q("0.15 in")),
    Sketcher.Constraint("DistanceX", 0, 3, -1, 1, 41.073322),
    Sketcher.Constraint("DistanceY", 0, 3, -1, 1, 24.212756),
])
pocket4 = body.newObject("PartDesign::Pocket", "Pocket003")
pocket4.Profile = sketch5
pocket4.Length = Q("2.85 in")

# Sketch on an angled plane
sketch6 = body.newObject("Sketcher::SketchObject", "Sketch005")
sketch6.Placement = App.Placement(Vector(0, -27.901497, -2.604099), App.Rotation(Vector(1, 0, 0), Vector(0, -0.092928013, 0.99567283), Vector(0, -0.99567283, -0.092928013), "ZXY"))
sketch6.addGeometry([
    Part.Circle(Vector(28.4, -142.6, 0), Vector(0, 0, 1), 2),  # 0
    Part.Circle(Vector(-28.4, -142.6, 0), Vector(0, 0, 1), 2),  # 1
    Part.Circle(Vector(7, -101.7, 0), Vector(0, 0, 1), 1.9),  # 2
    Part.Circle(Vector(-7, -101.7, 0), Vector(0, 0, 1), 1.9),  # 3
    Part.Circle(Vector(-7, -192.4, 0), Vector(0, 0, 1), 1.9),  # 4
    Part.Circle(Vector(7, -192.4, 0), Vector(0, 0, 1), 1.9),  # 5
], False)
sketch6.addConstraint([
    Sketcher.Constraint("Equal", 0, 1),
    Sketcher.Constraint("Equal", 2, 3),
    Sketcher.Constraint("Equal", 3, 4),
    Sketcher.Constraint("Equal", 4, 5),
    Sketcher.Constraint("Symmetric", 0, 3, 1, 3, -2),
    Sketcher.Constraint("Symmetric", 2, 3, 3, 3, -2),
    Sketcher.Constraint("Symmetric", 4, 3, 5, 3, -2),
    Sketcher.Constraint("Vertical", 3, 3, 4, 3),
    Sketcher.Constraint("Diameter", 0, Q("0.16 in")),
    Sketcher.Constraint("Diameter", 2, Q("0.15 in")),
    Sketcher.Constraint("DistanceX", 3, 3, 2, 3, Q("0.55 in")),
    Sketcher.Constraint("DistanceY", 2, 3, -1, 1, 101.713201),
    Sketcher.Constraint("DistanceY", 4, 3, -1, 1, 192.443641),
    Sketcher.Constraint("DistanceX", -1, 1, 0, 3, 28.407237),
    Sketcher.Constraint("DistanceY", 0, 3, -1, 1, 142.608724),
])
pocket5 = body.newObject("PartDesign::Pocket", "Pocket004")
pocket5.Profile = sketch6
pocket5.Length = Q("1.86 in")

# Sketch on an angled plane
sketch7 = body.newObject("Sketcher::SketchObject", "Sketch006")
sketch7.Placement = App.Placement(Vector(0, -50.397568, 16.734958), App.Rotation(Vector(1, 0, 0), Vector(0, 0.315138957, 0.94904554), Vector(0, -0.94904554, 0.315138957), "ZXY"))
sketch7.addGeometry(Part.Circle(Vector(28.4, 74.3, 0), Vector(0, 0, 1), 2), False)  # 0
sketch7.addGeometry(Part.Circle(Vector(-28.4, 74.3, 0), Vector(0, 0, 1), 2), False)  # 1
add_polygon(sketch7, [(-21.5, 93.1), (-21.5, 60.9), (21.5, 60.9), (21.5, 93.1)])  # lines 2-5
sketch7.addConstraint([
    Sketcher.Constraint("Vertical", 2),
    Sketcher.Constraint("Horizontal", 3),
    Sketcher.Constraint("Vertical", 4),
    Sketcher.Constraint("Horizontal", 5),
    Sketcher.Constraint("Equal", 0, 1),
    Sketcher.Constraint("Symmetric", 0, 3, 1, 3, -2),
    Sketcher.Constraint("Diameter", 0, Q("0.16 in")),
    Sketcher.Constraint("DistanceY", 2, 2, 2, 1, 32.245462),
    Sketcher.Constraint("DistanceY", 0, 3, 4, 2, 18.804701),
    Sketcher.Constraint("DistanceX", 3, 1, 3, 2, 42.951687),
    Sketcher.Constraint("DistanceX", 2, 2, 0, 3, 49.883081),
    Sketcher.Constraint("DistanceX", 1, 3, 3, 2, 49.883081),
    Sketcher.Constraint("DistanceY", -1, 1, 0, 3, 74.333896),
])
pocket6 = body.newObject("PartDesign::Pocket", "Pocket005")
pocket6.Profile = sketch7
pocket6.Length = Q("1.9 in")

# Sketch on an angled plane
sketch8 = body.newObject("Sketcher::SketchObject", "Sketch007")
sketch8.Placement = App.Placement(Vector(0, 32.130432, 96.761263), App.Rotation(Vector(1, 0, 0), Vector(0, 0.94904554, -0.315138957), Vector(0, 0.315138957, 0.94904554), "ZXY"))
sketch8.addGeometry([
    Part.Circle(Vector(-41.1, -49.3, 0), Vector(0, 0, 1), 1.9),
    Part.Circle(Vector(41.1, -49.3, 0), Vector(0, 0, 1), 1.9),
], False)
sketch8.addConstraint([
    Sketcher.Constraint("Equal", 0, 1),
    Sketcher.Constraint("Symmetric", 0, 3, 1, 3, -2),
    Sketcher.Constraint("Diameter", 0, Q("0.15 in")),
    Sketcher.Constraint("DistanceX", 0, 3, -1, 1, 41.141847),
    Sketcher.Constraint("DistanceY", 0, 3, -1, 1, 49.293425),
])
pocket7 = body.newObject("PartDesign::Pocket", "Pocket006")
pocket7.Profile = sketch8
pocket7.Length = Q("1.8 in")

# Sketch on an angled plane
sketch9 = body.newObject("Sketcher::SketchObject", "Sketch008")
sketch9.Placement = App.Placement(Vector(0, -20.31447, -1.895988), App.Rotation(Vector(1, 0, 0), Vector(0, 0.092928013, -0.99567283), Vector(0, 0.99567283, 0.092928013), "ZXY"))
sketch9.addGeometry([
    Part.Circle(Vector(0, -58, 0), Vector(0, 0, 1), 2),
    Part.Circle(Vector(35.6, -58, 0), Vector(0, 0, 1), 2),
    Part.Circle(Vector(-35.6, -58, 0), Vector(0, 0, 1), 2),
    Part.Circle(Vector(0, 44.7, 0), Vector(0, 0, 1), 2),
], False)
sketch9.addConstraint([
    Sketcher.Constraint("Equal", 0, 1),
    Sketcher.Constraint("Equal", 1, 2),
    Sketcher.Constraint("Equal", 2, 3),
    Sketcher.Constraint("Symmetric", 1, 3, 2, 3, -2),
    Sketcher.Constraint("PointOnObject", 0, 3, -2),
    Sketcher.Constraint("PointOnObject", 3, 3, -2),
    Sketcher.Constraint("Horizontal", 0, 3, 1, 3),
    Sketcher.Constraint("Diameter", 0, Q("0.16 in")),
    Sketcher.Constraint("DistanceX", -1, 1, 1, 3, Q("1.4 in")),
    Sketcher.Constraint("DistanceY", 0, 3, -1, 1, 57.996942),
    Sketcher.Constraint("DistanceY", -1, 1, 3, 3, 44.661295),
])
pocket8 = body.newObject("PartDesign::Pocket", "Pocket007")
pocket8.Profile = sketch9
pocket8.Length = 10
body2 = doc.addObject("PartDesign::Body", "Body001")

# Sketch on YZ plane
sketch10 = body2.newObject("Sketcher::SketchObject", "Sketch009")
sketch10.AttachmentSupport = (doc.getObject("YZ_Plane001"), [""])
sketch10.MapMode = "FlatFace"
sketch10.addGeometry(Part.Circle(Vector(8, -159, 0), Vector(0, 0, 1), 17), False)
sketch10.addConstraint([
    Sketcher.Constraint("Diameter", 0, Q("1.3 in")),
    Sketcher.Constraint("DistanceX", -1, 1, 0, 3, 8.344646),
    Sketcher.Constraint("DistanceY", 0, 3, -1, 1, 158.631315),
])
pad2 = body2.newObject("PartDesign::Pad", "Pad001")
pad2.Profile = sketch10
pad2.Length = Q("0.8 in")
pad2.Midplane = True
body3 = doc.addObject("PartDesign::Body", "Body002")

# Sketch on YZ plane
sketch11 = body3.newObject("Sketcher::SketchObject", "Sketch010")
sketch11.AttachmentSupport = (doc.getObject("YZ_Plane002"), [""])
sketch11.MapMode = "FlatFace"
sketch11.addGeometry(Part.Circle(Vector(6, -133, 0), Vector(0, 0, 1), 9), False)
sketch11.addConstraint([
    Sketcher.Constraint("Diameter", 0, Q("0.7 in")),
    Sketcher.Constraint("DistanceX", -1, 1, 0, 3, 5.988811),
    Sketcher.Constraint("DistanceY", 0, 3, -1, 1, 133.340802),
])
pad3 = body3.newObject("PartDesign::Pad", "Pad002")
pad3.Profile = sketch11
pad3.Length = Q("0.8 in")
pad3.Midplane = True
body4 = doc.addObject("PartDesign::Body", "Body003")

# Sketch on YZ plane
sketch12 = body4.newObject("Sketcher::SketchObject", "Sketch011")
sketch12.AttachmentSupport = (doc.getObject("YZ_Plane003"), [""])
sketch12.MapMode = "FlatFace"
sketch12.addGeometry(Part.Circle(Vector(17, -121, 0), Vector(0, 0, 1), 7), False)
sketch12.addConstraint([
    Sketcher.Constraint("Diameter", 0, Q("0.59 in")),
    Sketcher.Constraint("DistanceY", 0, 3, -1, 1, 120.91052),
    Sketcher.Constraint("DistanceX", -1, 1, 0, 3, 16.660773),
])
pad4 = body4.newObject("PartDesign::Pad", "Pad003")
pad4.Profile = sketch12
pad4.Length = Q("0.8 in")
pad4.Midplane = True
body5 = doc.addObject("PartDesign::Body", "Body004")

# Sketch on YZ plane
sketch13 = body5.newObject("Sketcher::SketchObject", "Sketch012")
sketch13.AttachmentSupport = (doc.getObject("YZ_Plane004"), [""])
sketch13.MapMode = "FlatFace"
sketch13.addGeometry(Part.Circle(Vector(16, -165, 0), Vector(0, 0, 1), 5), False)
sketch13.addConstraint([
    Sketcher.Constraint("Diameter", 0, Q("0.4 in")),
    Sketcher.Constraint("DistanceX", -1, 1, 0, 3, 15.591759),
    Sketcher.Constraint("DistanceY", 0, 3, -1, 1, 164.502748),
])
pad5 = body5.newObject("PartDesign::Pad", "Pad004")
pad5.Profile = sketch13
pad5.Length = Q("1.58 in")
pad5.Midplane = True

# Sketch on YZ plane
sketch14 = body5.newObject("Sketcher::SketchObject", "Sketch013")
sketch14.AttachmentSupport = (doc.getObject("YZ_Plane004"), [""])
sketch14.MapMode = "FlatFace"
sketch14.AttachmentOffset = App.Placement(Vector(0, 0, -0.79 * 25.4), App.Rotation())
sketch14.addGeometry([
    Part.LineSegment(Vector(18.7, -164.5, 0), Vector(11.6, -164.5, 0)),
    Part.ArcOfCircle(Part.Circle(Vector(15.2, -164.5, 0), Vector(0, 0, 1), 3.6), math.radians(0), math.radians(180)),
], False)
sketch14.addGeometry(Part.LineSegment(Vector(18.7, -164.5, 0), Vector(11.6, -164.5, 0)), True)  # axis
sketch14.addConstraint([
    Sketcher.Constraint("Coincident", 0, 1, 1, 1),
    Sketcher.Constraint("Coincident", 1, 2, 0, 2),
    Sketcher.Constraint("Horizontal", 0),
    Sketcher.Constraint("Horizontal", 2),
    Sketcher.Constraint("Coincident", 2, 1, 0, 1),
    Sketcher.Constraint("Horizontal", 1, 3, 0, 1),
    Sketcher.Constraint("Equal", 0, 2),
    Sketcher.Constraint("Radius", 1, 3.572783),
    Sketcher.Constraint("DistanceX", -1, 1, 0, 1, 18.744301),
    Sketcher.Constraint("DistanceY", 1, 3, -1, 1, 164.54197),
])
revolution = body5.newObject("PartDesign::Revolution", "Revolution")
revolution.Profile = sketch14
revolution.ReferenceAxis = (sketch14, ["Axis0"])
revolution.Angle = 360
body6 = doc.addObject("PartDesign::Body", "Body005")

# Sketch on YZ plane
sketch15 = body6.newObject("Sketcher::SketchObject", "Sketch014")
sketch15.AttachmentSupport = (doc.getObject("YZ_Plane005"), [""])
sketch15.MapMode = "FlatFace"
sketch15.AttachmentOffset = App.Placement(Vector(0, 0, 0.79 * 25.4), App.Rotation())
sketch15.addGeometry([
    Part.LineSegment(Vector(11.6, -164.5, 0), Vector(18.7, -164.5, 0)),
    Part.ArcOfCircle(Part.Circle(Vector(15.2, -164.5, 0), Vector(0, 0, 1), 3.6), math.radians(0), math.radians(180)),
], False)
sketch15.addGeometry(Part.LineSegment(Vector(11.6, -164.5, 0), Vector(18.7, -164.5, 0)), True)  # axis
sketch15.addConstraint([
    Sketcher.Constraint("Coincident", 0, 1, 1, 2),
    Sketcher.Constraint("Coincident", 1, 1, 0, 2),
    Sketcher.Constraint("Horizontal", 0),
    Sketcher.Constraint("Horizontal", 2),
    Sketcher.Constraint("Coincident", 2, 1, 0, 1),
    Sketcher.Constraint("Horizontal", 1, 3, 0, 1),
    Sketcher.Constraint("Equal", 0, 2),
    Sketcher.Constraint("Radius", 1, 3.572783),
    Sketcher.Constraint("DistanceX", -1, 1, 1, 1, 18.744301),
    Sketcher.Constraint("DistanceY", 1, 3, -1, 1, 164.54197),
])
revolution2 = body6.newObject("PartDesign::Revolution", "Revolution001")
revolution2.Profile = sketch15
revolution2.ReferenceAxis = (sketch15, ["Axis0"])
revolution2.Angle = 360
body7 = doc.addObject("PartDesign::Body", "Body006")

# Sketch on an angled plane
sketch16 = body7.newObject("Sketcher::SketchObject", "Sketch015")
sketch16.Placement = App.Placement(Vector(0, -27.901497, -2.604099), App.Rotation(Vector(1, 0, 0), Vector(0, -0.092928013, 0.99567283), Vector(0, -0.99567283, -0.092928013), "ZXY"))
sketch16.addGeometry([
    Part.LineSegment(Vector(5.1, -44.7, 0), Vector(5.1, 58, 0)),  # 0
    Part.ArcOfCircle(Part.Circle(Vector(0, 58, 0), Vector(0, 0, 1), 5.1), math.radians(0), math.radians(181)),  # 1
    Part.LineSegment(Vector(-5.1, 57.9, 0), Vector(-5.1, -44.7, 0)),  # 2
    Part.ArcOfCircle(Part.Circle(Vector(0, -44.7, 0), Vector(0, 0, 1), 5.1), math.radians(180), math.radians(360)),  # 3
    Part.Circle(Vector(0, -44.7, 0), Vector(0, 0, 1), 2),  # 4
    Part.Circle(Vector(0, 58, 0), Vector(0, 0, 1), 2),  # 5
], False)
sketch16.addConstraint([
    Sketcher.Constraint("Tangent", 0, 2, 1, 1),
    Sketcher.Constraint("Coincident", 1, 2, 2, 1),
    Sketcher.Constraint("Coincident", 2, 2, 3, 1),
    Sketcher.Constraint("Tangent", 3, 2, 0, 1),
    Sketcher.Constraint("Vertical", 0),
    Sketcher.Constraint("Coincident", 4, 3, 3, 3),
    Sketcher.Constraint("Coincident", 5, 3, 1, 3),
    Sketcher.Constraint("Equal", 1, 3),
    Sketcher.Constraint("Equal", 4, 5),
    Sketcher.Constraint("Symmetric", 2, 2, 3, 2, -2),
    Sketcher.Constraint("Radius", 1, Q("0.2 in")),
    Sketcher.Constraint("Diameter", 4, Q("0.16 in")),
    Sketcher.Constraint("DistanceY", 0, 1, 0, 2, 102.631809),
    Sketcher.Constraint("Distance", 2, 102.52097),
    Sketcher.Constraint("DistanceY", -1, 1, 1, 3, 57.970513),
])
pad6 = body7.newObject("PartDesign::Pad", "Pad005")
pad6.Profile = sketch16
pad6.Length = Q("0.125 in")

doc.recompute()
